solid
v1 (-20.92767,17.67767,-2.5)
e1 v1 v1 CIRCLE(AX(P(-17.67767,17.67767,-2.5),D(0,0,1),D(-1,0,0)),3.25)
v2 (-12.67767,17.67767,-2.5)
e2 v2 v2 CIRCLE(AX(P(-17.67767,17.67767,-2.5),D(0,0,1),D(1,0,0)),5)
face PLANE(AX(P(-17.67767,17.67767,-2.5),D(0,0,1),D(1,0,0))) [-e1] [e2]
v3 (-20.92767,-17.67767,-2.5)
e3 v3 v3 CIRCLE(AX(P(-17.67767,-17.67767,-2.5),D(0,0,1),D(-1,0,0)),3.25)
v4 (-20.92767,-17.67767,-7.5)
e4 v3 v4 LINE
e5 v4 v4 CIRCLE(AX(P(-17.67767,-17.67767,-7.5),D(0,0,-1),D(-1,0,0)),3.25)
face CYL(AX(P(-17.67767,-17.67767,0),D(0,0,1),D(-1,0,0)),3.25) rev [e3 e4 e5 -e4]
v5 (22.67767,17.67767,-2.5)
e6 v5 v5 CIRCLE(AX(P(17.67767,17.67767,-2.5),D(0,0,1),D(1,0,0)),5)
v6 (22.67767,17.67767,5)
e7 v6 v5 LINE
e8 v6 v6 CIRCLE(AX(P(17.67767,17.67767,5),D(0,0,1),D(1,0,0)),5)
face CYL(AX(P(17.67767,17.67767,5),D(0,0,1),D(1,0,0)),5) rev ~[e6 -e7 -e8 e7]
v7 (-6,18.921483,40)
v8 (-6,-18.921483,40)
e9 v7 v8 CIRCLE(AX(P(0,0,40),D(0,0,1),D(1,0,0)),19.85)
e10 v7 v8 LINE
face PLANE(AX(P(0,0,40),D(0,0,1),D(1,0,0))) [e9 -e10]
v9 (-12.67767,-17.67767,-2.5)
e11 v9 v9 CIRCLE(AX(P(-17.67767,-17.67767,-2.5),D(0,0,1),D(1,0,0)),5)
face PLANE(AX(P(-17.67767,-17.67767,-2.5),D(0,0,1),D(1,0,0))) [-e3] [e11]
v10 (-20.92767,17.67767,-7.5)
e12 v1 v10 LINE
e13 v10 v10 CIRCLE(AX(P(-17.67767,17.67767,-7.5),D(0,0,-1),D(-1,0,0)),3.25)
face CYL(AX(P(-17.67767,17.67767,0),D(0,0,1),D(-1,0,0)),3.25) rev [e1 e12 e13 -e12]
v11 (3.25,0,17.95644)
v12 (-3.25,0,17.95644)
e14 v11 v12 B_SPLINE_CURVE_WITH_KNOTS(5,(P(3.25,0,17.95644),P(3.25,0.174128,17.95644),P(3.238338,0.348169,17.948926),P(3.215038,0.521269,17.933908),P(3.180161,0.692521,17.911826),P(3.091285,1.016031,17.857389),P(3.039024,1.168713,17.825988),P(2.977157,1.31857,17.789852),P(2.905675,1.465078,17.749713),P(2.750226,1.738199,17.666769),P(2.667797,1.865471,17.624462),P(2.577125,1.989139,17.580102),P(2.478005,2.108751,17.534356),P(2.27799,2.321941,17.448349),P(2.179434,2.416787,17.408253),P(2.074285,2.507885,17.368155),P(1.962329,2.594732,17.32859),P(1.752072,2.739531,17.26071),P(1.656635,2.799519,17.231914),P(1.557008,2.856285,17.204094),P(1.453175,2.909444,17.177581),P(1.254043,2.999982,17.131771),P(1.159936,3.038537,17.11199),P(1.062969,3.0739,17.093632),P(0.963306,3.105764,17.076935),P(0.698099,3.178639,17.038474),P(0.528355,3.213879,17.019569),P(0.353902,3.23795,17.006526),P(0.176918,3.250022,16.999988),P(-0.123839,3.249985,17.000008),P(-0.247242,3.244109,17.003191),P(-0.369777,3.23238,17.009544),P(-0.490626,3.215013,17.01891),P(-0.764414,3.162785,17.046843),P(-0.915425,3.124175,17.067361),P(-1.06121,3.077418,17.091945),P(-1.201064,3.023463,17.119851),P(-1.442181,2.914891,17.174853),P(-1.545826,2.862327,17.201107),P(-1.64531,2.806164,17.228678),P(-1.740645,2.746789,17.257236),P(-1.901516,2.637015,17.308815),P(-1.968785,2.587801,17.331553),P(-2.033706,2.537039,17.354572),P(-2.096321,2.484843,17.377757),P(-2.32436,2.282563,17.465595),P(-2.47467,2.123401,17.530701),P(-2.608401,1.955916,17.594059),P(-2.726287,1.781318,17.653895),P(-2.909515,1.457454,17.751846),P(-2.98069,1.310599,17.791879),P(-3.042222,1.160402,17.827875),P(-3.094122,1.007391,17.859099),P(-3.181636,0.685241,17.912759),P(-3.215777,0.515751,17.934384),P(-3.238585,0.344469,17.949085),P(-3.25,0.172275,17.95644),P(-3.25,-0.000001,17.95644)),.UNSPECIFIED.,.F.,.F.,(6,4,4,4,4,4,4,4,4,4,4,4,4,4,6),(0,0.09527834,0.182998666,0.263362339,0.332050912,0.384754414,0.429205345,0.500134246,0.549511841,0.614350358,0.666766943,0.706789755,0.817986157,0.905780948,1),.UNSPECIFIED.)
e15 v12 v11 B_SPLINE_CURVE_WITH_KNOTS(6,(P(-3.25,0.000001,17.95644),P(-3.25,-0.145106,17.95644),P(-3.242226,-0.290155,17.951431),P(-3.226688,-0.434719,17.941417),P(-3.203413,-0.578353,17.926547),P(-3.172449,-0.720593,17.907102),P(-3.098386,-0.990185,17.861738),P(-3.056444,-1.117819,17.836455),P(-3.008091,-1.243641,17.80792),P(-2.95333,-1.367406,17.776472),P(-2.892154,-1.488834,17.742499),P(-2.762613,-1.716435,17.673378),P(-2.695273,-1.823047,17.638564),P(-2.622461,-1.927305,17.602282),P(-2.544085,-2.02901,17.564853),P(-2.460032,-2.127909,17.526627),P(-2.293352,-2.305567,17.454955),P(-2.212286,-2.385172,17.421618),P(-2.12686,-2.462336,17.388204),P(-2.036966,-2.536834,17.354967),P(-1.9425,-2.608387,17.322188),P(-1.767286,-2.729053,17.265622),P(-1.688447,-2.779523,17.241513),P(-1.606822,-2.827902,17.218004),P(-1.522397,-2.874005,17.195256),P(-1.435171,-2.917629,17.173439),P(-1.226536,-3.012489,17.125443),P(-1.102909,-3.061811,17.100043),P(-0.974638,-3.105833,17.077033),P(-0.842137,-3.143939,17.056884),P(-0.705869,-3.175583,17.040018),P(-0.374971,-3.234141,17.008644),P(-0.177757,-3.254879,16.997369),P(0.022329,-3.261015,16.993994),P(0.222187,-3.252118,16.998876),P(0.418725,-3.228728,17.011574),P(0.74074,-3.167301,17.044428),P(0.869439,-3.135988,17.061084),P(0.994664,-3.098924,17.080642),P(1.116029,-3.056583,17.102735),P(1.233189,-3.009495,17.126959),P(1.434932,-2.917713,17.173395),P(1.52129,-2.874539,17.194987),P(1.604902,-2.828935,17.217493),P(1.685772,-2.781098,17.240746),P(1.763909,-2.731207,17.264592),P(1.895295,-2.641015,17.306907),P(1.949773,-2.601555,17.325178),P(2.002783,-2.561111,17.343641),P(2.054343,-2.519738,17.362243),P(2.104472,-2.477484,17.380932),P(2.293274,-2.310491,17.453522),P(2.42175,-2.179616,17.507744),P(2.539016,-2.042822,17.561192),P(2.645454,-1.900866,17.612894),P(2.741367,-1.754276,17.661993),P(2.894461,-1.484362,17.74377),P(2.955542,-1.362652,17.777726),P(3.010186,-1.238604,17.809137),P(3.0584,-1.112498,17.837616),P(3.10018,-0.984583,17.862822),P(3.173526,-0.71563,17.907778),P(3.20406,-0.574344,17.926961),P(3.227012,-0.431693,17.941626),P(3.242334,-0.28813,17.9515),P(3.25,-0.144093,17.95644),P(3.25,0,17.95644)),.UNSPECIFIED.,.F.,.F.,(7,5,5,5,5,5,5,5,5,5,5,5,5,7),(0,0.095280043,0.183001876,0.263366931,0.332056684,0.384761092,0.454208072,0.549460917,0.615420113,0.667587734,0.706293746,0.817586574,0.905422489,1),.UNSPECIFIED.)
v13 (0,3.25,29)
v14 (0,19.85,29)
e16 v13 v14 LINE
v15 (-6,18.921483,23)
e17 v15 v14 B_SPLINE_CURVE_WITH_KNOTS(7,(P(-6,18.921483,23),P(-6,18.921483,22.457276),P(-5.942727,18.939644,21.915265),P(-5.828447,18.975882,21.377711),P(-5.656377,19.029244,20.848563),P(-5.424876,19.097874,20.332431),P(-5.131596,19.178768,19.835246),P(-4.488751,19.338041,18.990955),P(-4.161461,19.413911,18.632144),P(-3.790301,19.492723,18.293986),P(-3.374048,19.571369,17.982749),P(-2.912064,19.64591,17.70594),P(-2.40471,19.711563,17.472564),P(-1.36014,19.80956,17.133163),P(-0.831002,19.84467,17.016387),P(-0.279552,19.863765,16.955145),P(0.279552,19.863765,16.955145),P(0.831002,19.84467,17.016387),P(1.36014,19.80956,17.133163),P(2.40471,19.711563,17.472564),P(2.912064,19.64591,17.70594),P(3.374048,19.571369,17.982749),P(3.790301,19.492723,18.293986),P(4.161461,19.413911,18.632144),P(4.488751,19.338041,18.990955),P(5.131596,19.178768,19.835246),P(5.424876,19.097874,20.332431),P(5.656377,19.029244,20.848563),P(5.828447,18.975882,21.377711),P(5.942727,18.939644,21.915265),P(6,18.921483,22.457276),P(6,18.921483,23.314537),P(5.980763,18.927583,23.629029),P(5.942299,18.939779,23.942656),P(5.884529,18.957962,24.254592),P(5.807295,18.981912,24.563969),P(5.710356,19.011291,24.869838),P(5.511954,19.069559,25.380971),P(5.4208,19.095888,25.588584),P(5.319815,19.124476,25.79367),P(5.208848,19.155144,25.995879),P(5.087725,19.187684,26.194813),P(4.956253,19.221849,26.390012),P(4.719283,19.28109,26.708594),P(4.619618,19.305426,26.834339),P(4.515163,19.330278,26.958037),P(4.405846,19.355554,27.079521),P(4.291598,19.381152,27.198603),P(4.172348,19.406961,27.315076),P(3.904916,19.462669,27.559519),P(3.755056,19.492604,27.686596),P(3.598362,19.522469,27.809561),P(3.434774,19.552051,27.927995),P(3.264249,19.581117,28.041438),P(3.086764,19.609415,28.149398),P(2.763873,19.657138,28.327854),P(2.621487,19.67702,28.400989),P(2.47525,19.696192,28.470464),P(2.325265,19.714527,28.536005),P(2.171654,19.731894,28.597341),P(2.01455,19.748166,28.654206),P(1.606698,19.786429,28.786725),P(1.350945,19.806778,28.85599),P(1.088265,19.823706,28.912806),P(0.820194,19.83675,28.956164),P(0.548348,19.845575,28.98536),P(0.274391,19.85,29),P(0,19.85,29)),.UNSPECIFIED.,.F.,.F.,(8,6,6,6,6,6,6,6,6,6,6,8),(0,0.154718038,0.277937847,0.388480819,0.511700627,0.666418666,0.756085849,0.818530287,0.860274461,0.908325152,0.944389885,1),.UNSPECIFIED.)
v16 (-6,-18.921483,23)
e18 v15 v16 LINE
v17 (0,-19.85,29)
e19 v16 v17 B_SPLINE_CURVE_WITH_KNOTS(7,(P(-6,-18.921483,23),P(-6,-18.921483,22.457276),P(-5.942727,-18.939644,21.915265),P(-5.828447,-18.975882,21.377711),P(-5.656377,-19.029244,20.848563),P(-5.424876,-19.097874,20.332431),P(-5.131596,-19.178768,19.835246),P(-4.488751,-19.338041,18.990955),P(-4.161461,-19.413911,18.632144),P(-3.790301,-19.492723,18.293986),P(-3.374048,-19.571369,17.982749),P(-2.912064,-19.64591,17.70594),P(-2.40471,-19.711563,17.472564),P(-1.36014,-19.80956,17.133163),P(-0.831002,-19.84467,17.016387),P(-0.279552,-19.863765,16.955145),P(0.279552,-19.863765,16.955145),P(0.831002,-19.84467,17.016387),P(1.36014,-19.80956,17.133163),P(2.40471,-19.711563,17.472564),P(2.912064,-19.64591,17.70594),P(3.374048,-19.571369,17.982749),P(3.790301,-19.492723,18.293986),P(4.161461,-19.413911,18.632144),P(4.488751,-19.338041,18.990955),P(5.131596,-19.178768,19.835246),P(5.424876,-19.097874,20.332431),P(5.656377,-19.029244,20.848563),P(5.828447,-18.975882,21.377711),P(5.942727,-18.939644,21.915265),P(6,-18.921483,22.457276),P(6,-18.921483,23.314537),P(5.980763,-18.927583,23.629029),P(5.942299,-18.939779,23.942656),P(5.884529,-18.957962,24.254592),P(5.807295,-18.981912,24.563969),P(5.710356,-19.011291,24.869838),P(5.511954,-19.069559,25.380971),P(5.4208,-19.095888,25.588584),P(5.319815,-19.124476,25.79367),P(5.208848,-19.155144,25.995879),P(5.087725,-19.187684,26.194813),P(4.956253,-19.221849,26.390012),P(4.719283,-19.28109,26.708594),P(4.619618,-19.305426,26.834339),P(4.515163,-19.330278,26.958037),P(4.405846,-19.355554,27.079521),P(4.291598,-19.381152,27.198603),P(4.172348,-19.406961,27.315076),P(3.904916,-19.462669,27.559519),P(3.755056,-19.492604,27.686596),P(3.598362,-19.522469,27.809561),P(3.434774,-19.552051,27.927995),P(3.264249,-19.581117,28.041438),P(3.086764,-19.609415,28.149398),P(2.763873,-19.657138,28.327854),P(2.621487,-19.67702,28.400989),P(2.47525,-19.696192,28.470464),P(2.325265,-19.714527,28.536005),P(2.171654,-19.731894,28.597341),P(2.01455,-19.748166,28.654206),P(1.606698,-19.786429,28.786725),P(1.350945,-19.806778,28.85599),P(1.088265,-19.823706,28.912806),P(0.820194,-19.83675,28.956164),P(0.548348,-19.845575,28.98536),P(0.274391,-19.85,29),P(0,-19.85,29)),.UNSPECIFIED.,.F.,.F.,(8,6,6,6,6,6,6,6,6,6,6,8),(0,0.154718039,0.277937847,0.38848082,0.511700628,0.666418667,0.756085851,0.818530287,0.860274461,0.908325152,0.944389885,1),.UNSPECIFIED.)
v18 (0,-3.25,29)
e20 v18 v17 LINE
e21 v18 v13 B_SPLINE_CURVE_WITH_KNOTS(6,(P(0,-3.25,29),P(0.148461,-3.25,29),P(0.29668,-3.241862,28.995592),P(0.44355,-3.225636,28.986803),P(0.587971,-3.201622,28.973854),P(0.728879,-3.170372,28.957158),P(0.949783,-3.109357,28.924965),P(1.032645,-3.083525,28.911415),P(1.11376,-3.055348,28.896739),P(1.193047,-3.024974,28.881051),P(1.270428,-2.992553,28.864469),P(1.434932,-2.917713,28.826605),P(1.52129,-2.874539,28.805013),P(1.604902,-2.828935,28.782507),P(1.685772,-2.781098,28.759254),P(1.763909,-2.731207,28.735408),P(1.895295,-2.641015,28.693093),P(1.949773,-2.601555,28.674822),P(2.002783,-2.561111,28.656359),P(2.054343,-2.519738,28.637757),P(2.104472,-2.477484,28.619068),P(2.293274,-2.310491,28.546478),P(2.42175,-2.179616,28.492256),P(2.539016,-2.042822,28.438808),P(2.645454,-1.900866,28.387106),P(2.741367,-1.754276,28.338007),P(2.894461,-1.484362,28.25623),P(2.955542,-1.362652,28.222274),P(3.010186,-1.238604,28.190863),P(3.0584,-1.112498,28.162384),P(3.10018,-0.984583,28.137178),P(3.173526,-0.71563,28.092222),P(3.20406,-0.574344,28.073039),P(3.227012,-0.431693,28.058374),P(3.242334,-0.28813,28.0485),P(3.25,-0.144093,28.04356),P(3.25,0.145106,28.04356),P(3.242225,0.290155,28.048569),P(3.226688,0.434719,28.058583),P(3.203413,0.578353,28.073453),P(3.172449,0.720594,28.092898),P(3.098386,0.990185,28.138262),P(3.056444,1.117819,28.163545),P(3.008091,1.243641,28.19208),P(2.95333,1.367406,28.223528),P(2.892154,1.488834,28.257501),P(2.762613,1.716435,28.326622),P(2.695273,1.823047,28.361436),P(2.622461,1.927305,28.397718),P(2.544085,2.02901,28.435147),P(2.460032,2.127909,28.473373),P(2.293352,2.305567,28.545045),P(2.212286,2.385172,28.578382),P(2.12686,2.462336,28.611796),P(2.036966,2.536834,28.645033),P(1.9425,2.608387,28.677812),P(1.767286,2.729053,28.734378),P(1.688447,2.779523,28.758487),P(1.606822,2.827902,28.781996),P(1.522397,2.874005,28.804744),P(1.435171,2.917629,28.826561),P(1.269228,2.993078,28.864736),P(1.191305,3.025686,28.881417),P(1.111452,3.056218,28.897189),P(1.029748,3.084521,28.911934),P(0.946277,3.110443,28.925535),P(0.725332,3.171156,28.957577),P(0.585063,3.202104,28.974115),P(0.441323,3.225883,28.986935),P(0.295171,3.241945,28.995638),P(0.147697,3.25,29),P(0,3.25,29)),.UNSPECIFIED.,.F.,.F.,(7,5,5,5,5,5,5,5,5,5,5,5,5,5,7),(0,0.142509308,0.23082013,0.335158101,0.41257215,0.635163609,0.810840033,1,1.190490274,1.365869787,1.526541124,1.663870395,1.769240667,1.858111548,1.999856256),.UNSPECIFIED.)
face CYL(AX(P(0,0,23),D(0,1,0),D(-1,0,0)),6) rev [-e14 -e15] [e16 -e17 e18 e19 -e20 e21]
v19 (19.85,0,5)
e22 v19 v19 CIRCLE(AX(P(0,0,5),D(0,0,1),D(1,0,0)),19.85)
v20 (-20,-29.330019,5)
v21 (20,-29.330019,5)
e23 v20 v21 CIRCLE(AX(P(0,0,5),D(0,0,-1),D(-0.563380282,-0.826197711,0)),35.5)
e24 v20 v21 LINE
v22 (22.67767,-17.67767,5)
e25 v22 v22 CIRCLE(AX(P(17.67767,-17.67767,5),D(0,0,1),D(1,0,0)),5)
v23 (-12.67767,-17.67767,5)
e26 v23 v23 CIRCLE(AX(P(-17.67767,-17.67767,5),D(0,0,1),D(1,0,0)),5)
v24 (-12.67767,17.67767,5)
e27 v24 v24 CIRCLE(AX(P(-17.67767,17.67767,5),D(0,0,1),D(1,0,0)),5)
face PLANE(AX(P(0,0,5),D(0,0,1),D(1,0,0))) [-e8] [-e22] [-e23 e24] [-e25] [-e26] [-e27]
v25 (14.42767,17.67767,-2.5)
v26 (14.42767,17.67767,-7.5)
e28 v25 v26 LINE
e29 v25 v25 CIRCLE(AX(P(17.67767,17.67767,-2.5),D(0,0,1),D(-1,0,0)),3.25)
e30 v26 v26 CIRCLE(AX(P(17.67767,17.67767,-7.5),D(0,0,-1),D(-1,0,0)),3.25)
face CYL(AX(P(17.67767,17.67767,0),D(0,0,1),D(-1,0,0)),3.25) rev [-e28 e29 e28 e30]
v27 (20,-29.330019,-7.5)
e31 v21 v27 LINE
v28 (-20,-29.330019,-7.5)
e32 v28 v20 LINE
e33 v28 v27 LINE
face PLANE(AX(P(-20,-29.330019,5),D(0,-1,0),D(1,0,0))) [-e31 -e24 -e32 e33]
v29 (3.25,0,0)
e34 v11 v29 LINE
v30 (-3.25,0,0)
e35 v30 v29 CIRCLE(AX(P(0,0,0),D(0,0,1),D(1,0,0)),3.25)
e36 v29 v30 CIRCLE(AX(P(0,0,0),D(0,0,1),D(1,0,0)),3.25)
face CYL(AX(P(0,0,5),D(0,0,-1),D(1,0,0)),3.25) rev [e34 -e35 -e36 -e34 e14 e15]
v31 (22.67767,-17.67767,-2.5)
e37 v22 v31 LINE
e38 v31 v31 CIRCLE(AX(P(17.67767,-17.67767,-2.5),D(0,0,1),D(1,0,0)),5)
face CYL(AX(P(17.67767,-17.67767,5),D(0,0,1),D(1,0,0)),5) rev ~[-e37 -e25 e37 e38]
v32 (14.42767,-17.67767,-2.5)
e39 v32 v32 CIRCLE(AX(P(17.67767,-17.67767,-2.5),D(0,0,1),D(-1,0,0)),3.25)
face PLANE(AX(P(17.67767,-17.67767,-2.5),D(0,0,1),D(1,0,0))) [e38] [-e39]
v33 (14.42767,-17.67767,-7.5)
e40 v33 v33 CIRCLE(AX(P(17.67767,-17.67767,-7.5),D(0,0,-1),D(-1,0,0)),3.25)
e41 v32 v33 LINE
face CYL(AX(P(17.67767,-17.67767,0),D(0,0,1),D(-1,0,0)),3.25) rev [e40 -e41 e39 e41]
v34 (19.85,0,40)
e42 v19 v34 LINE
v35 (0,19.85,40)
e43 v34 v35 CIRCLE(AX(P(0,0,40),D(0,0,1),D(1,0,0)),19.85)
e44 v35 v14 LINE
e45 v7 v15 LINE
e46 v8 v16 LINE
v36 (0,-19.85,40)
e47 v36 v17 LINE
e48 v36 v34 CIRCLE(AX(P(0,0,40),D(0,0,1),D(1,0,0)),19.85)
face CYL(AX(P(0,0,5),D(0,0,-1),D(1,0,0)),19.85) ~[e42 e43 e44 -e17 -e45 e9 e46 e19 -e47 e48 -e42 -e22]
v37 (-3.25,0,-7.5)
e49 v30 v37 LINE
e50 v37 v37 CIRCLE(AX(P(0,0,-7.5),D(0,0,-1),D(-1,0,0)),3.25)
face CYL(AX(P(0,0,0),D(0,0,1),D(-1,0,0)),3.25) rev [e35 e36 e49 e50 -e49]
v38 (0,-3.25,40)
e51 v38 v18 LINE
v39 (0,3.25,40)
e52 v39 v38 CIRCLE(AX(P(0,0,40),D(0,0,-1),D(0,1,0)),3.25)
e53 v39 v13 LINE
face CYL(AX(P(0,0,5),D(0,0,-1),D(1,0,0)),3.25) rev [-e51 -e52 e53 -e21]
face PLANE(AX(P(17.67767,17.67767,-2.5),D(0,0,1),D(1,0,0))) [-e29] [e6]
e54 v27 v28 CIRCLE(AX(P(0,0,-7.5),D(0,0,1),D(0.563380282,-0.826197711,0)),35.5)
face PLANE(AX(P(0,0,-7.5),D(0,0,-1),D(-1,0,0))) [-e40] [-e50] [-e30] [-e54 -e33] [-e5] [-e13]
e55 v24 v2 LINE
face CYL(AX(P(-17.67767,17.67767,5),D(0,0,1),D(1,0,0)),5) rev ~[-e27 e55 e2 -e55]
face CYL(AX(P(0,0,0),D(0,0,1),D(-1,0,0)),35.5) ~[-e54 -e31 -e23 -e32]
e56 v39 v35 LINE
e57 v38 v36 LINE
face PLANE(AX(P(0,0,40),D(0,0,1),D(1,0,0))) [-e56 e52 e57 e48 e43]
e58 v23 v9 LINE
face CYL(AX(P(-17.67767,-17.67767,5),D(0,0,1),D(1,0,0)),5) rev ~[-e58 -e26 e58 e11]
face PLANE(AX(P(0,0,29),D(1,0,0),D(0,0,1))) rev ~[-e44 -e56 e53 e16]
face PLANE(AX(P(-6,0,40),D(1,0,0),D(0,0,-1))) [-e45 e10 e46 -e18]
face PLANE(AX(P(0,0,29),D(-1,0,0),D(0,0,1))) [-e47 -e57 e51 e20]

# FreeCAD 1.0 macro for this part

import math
import FreeCAD as App
import Part
import Sketcher

doc = App.newDocument("Part")
body = doc.addObject("PartDesign::Body", "Body")

# Sketch on XY plane
sketch1 = body.newObject("Sketcher::SketchObject", "Sketch")
sketch1.AttachmentSupport = (doc.getObject("XY_Plane"), [""])
sketch1.MapMode = "FlatFace"
sketch1.addGeometry([
    Part.Circle(App.Vector(0, 0, 0), App.Vector(0, 0, 1), 35.5),  # 0
    Part.Circle(App.Vector(-17.7, -17.7, 0), App.Vector(0, 0, 1), 3.2),  # 1
    Part.Circle(App.Vector(17.7, -17.7, 0), App.Vector(0, 0, 1), 3.2),  # 2
    Part.Circle(App.Vector(-17.7, 17.7, 0), App.Vector(0, 0, 1), 3.2),  # 3
    Part.Circle(App.Vector(0, 0, 0), App.Vector(0, 0, 1), 3.2),  # 4
    Part.Circle(App.Vector(17.7, 17.7, 0), App.Vector(0, 0, 1), 3.2),  # 5
], False)
sketch1.addConstraint([
    Sketcher.Constraint("Coincident", 0, 3, -1, 1),
    Sketcher.Constraint("Coincident", 4, 3, -1, 1),
    Sketcher.Constraint("Equal", 1, 2),
    Sketcher.Constraint("Equal", 2, 3),
    Sketcher.Constraint("Equal", 3, 4),
    Sketcher.Constraint("Equal", 4, 5),
    Sketcher.Constraint("Symmetric", 2, 3, 3, 3, -1, 1),
    Sketcher.Constraint("Symmetric", 1, 3, 5, 3, -1, 1),
    Sketcher.Constraint("Symmetric", 1, 3, 2, 3, -2),
    Sketcher.Constraint("Diameter", 0, 71.0),
    Sketcher.Constraint("Diameter", 1, 6.5),
    Sketcher.Constraint("DistanceX", 1, 3, -1, 1, 17.67767),
    Sketcher.Constraint("DistanceY", 1, 3, -1, 1, 17.67767),
])
pad1 = body.newObject("PartDesign::Pad", "Pad")
pad1.Profile = sketch1
pad1.Length = 5

# Sketch on XY plane
sketch2 = body.newObject("Sketcher::SketchObject", "Sketch001")
sketch2.AttachmentSupport = (doc.getObject("XY_Plane"), [""])
sketch2.MapMode = "FlatFace"
sketch2.AttachmentOffset = App.Placement(App.Vector(0, 0, 5), App.Rotation())
sketch2.addGeometry([
    Part.Circle(App.Vector(0, 0, 0), App.Vector(0, 0, 1), 19.9),
    Part.Circle(App.Vector(0, 0, 0), App.Vector(0, 0, 1), 3.2),
], False)
sketch2.addConstraint([
    Sketcher.Constraint("Coincident", 0, 3, -1, 1),
    Sketcher.Constraint("Coincident", 1, 3, -1, 1),
    Sketcher.Constraint("Diameter", 0, 39.7),
    Sketcher.Constraint("Diameter", 1, 6.5),
])
pad2 = body.newObject("PartDesign::Pad", "Pad001")
pad2.Profile = sketch2
pad2.Length = 35

# Sketch on XZ plane
sketch3 = body.newObject("Sketcher::SketchObject", "Sketch002")
sketch3.AttachmentSupport = (doc.getObject("XZ_Plane"), [""])
sketch3.MapMode = "FlatFace"
sketch3.addGeometry([
    Part.LineSegment(App.Vector(0, 40, 0), App.Vector(0, 29, 0)),
    Part.ArcOfCircle(Part.Circle(App.Vector(0, 23, 0), App.Vector(0, 0, 1), 6), math.radians(180), math.radians(450)),
    Part.LineSegment(App.Vector(-6, 23, 0), App.Vector(-6, 40, 0)),
    Part.LineSegment(App.Vector(-6, 40, 0), App.Vector(0, 40, 0)),
], False)
sketch3.addConstraint([
    Sketcher.Constraint("Coincident", 0, 2, 1, 2),
    Sketcher.Constraint("Tangent", 1, 1, 2, 1),
    Sketcher.Constraint("Coincident", 2, 2, 3, 1),
    Sketcher.Constraint("Coincident", 3, 2, 0, 1),
    Sketcher.Constraint("Vertical", 0),
    Sketcher.Constraint("Vertical", 2),
    Sketcher.Constraint("Horizontal", 3),
    Sketcher.Constraint("PointOnObject", 1, 3, -2),
    Sketcher.Constraint("PointOnObject", 0, 2, -2),
    Sketcher.Constraint("Radius", 1, 6.0),
    Sketcher.Constraint("DistanceY", 0, 2, 0, 1, 11.0),
    Sketcher.Constraint("DistanceY", -1, 1, 1, 3, 23.0),
])
pocket1 = body.newObject("PartDesign::Pocket", "Pocket")
pocket1.Profile = sketch3
pocket1.Type = "ThroughAll"
pocket1.Midplane = True

# Sketch on XY plane
sketch4 = body.newObject("Sketcher::SketchObject", "Sketch003")
sketch4.AttachmentSupport = (doc.getObject("XY_Plane"), [""])
sketch4.MapMode = "FlatFace"
sketch4.addGeometry([
    Part.Circle(App.Vector(0, 0, 0), App.Vector(0, 0, 1), 35.5),  # 0
    Part.Circle(App.Vector(17.7, -17.7, 0), App.Vector(0, 0, 1), 3.2),  # 1
    Part.Circle(App.Vector(-17.7, -17.7, 0), App.Vector(0, 0, 1), 3.2),  # 2
    Part.Circle(App.Vector(17.7, 17.7, 0), App.Vector(0, 0, 1), 3.2),  # 3
    Part.Circle(App.Vector(0, 0, 0), App.Vector(0, 0, 1), 3.2),  # 4
    Part.Circle(App.Vector(-17.7, 17.7, 0), App.Vector(0, 0, 1), 3.2),  # 5
], False)
sketch4.addConstraint([
    Sketcher.Constraint("Coincident", 0, 3, -1, 1),
    Sketcher.Constraint("Coincident", 4, 3, -1, 1),
    Sketcher.Constraint("Equal", 1, 2),
    Sketcher.Constraint("Equal", 2, 3),
    Sketcher.Constraint("Equal", 3, 4),
    Sketcher.Constraint("Equal", 4, 5),
    Sketcher.Constraint("Symmetric", 2, 3, 3, 3, -1, 1),
    Sketcher.Constraint("Symmetric", 1, 3, 5, 3, -1, 1),
    Sketcher.Constraint("Symmetric", 1, 3, 2, 3, -2),
    Sketcher.Constraint("Diameter", 0, 71.0),
    Sketcher.Constraint("Diameter", 1, 6.5),
    Sketcher.Constraint("DistanceX", -1, 1, 1, 3, 17.67767),
    Sketcher.Constraint("DistanceY", 1, 3, -1, 1, 17.67767),
])
pad3 = body.newObject("PartDesign::Pad", "Pad002")
pad3.Profile = sketch4
pad3.Length = 7.5
pad3.Reversed = True

# Sketch on XY plane
sketch5 = body.newObject("Sketcher::SketchObject", "Sketch004")
sketch5.AttachmentSupport = (doc.getObject("XY_Plane"), [""])
sketch5.MapMode = "FlatFace"
sketch5.AttachmentOffset = App.Placement(App.Vector(0, 0, 5), App.Rotation())
sketch5.addGeometry([
    Part.Circle(App.Vector(-18, 18, 0), App.Vector(0, 0, 1), 5),  # 0
    Part.Circle(App.Vector(18, 18, 0), App.Vector(0, 0, 1), 5),  # 1
    Part.Circle(App.Vector(18, -18, 0), App.Vector(0, 0, 1), 5),  # 2
    Part.Circle(App.Vector(-18, -18, 0), App.Vector(0, 0, 1), 5),  # 3
    Part.LineSegment(App.Vector(20, -29, 0), App.Vector(-20, -29, 0)),  # 4
    Part.ArcOfCircle(Part.Circle(App.Vector(0, 0, 0), App.Vector(0, 0, 1), 35), math.radians(-124), math.radians(-56)),  # 5
], False)
sketch5.addConstraint([
    Sketcher.Constraint("Coincident", 4, 1, 5, 2),
    Sketcher.Constraint("Coincident", 5, 1, 4, 2),
    Sketcher.Constraint("Horizontal", 4),
    Sketcher.Constraint("Coincident", 5, 3, -1, 1),
    Sketcher.Constraint("Equal", 0, 1),
    Sketcher.Constraint("Equal", 1, 2),
    Sketcher.Constraint("Equal", 2, 3),
    Sketcher.Constraint("Symmetric", 0, 3, 2, 3, -1, 1),
    Sketcher.Constraint("Symmetric", 1, 3, 3, 3, -1, 1),
    Sketcher.Constraint("Symmetric", 0, 3, 1, 3, -2),
    Sketcher.Constraint("Diameter", 0, 10.0),
    Sketcher.Constraint("Radius", 5, 35.5),
    Sketcher.Constraint("DistanceX", 4, 2, 4, 1, 40.0),
    Sketcher.Constraint("DistanceX", 0, 3, -1, 1, 17.67767),
    Sketcher.Constraint("DistanceY", -1, 1, 0, 3, 17.67767),
])
pocket2 = body.newObject("PartDesign::Pocket", "Pocket001")
pocket2.Profile = sketch5
pocket2.Length = 7.5

# Sketch on XY plane
sketch6 = body.newObject("Sketcher::SketchObject", "Sketch005")
sketch6.AttachmentSupport = (doc.getObject("XY_Plane"), [""])
sketch6.MapMode = "FlatFace"
sketch6.AttachmentOffset = App.Placement(App.Vector(0, 0, 5), App.Rotation())
sketch6.addGeometry([
    Part.LineSegment(App.Vector(20, -29, 0), App.Vector(-20, -29, 0)),
    Part.ArcOfCircle(Part.Circle(App.Vector(0, 0, 0), App.Vector(0, 0, 1), 35), math.radians(-124), math.radians(-56)),
], False)
sketch6.addConstraint([
    Sketcher.Constraint("Coincident", 0, 1, 1, 2),
    Sketcher.Constraint("Coincident", 1, 1, 0, 2),
    Sketcher.Constraint("Horizontal", 0),
    Sketcher.Constraint("Coincident", 1, 3, -1, 1),
    Sketcher.Constraint("Radius", 1, 35.5),
    Sketcher.Constraint("DistanceX", 0, 2, 0, 1, 40.0),
])
pocket3 = body.newObject("PartDesign::Pocket", "Pocket002")
pocket3.Profile = sketch6
pocket3.Type = "ThroughAll"

doc.recompute()
